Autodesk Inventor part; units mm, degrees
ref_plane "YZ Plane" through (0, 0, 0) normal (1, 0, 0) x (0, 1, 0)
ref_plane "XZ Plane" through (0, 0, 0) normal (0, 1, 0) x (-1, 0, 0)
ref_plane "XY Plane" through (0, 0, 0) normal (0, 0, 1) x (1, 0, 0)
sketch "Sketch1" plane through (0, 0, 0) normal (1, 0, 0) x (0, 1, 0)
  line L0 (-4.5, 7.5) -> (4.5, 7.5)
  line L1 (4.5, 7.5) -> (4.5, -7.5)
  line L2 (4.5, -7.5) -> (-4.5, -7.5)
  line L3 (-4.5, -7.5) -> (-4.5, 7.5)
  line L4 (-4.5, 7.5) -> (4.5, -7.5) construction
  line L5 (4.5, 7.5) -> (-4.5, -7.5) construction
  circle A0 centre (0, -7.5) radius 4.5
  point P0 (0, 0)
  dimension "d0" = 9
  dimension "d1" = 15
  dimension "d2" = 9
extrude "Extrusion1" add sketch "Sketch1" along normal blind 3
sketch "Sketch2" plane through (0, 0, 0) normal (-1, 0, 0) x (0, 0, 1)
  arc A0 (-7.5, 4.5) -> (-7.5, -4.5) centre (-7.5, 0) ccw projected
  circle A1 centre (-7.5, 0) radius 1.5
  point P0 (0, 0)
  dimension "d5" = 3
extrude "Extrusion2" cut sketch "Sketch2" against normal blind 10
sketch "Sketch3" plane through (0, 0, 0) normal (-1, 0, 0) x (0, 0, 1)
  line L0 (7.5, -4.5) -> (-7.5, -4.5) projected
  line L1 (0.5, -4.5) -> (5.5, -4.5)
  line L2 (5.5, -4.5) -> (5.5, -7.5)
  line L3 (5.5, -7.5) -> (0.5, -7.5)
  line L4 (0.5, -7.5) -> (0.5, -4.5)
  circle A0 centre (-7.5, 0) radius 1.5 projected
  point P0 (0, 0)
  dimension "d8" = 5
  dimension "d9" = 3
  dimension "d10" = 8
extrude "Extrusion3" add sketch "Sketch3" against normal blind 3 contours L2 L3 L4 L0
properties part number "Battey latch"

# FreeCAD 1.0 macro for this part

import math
import FreeCAD as App
import Part
import Sketcher

V = App.Vector
Q = App.Units.Quantity


def add_polygon(sketch, points):
    """Adds a closed chain of lines whose ends are joined by coincident constraints."""
    first, n = sketch.GeometryCount, len(points)
    for a, b in zip(points, points[1:] + points[:1]):
        sketch.addGeometry(Part.LineSegment(App.Vector(*a, 0), App.Vector(*b, 0)), False)
    for i in range(n):
        sketch.addConstraint(Sketcher.Constraint("Coincident", first + i, 2, first + (i + 1) % n, 1))

doc = App.newDocument("Part")
body = doc.addObject("PartDesign::Body", "Body")

# Sketch on YZ plane
sketch1 = body.newObject("Sketcher::SketchObject", "Sketch")
sketch1.AttachmentSupport = (doc.getObject("YZ_Plane"), [""])
sketch1.MapMode = "FlatFace"
sketch1.addGeometry(Part.LineSegment(V(4.5, 7.5, 0), V(-4.5, 7.5, 0)), False)
sketch1.addGeometry(Part.LineSegment(V(-4.5, 7.5, 0), V(-4.5, -7.5, 0)), False)
sketch1.addGeometry(Part.ArcOfCircle(Part.Circle(V(0, -7.5, 0), V(0, 0, 1), 4.5), math.radians(180), math.radians(360)), False)
sketch1.addGeometry(Part.LineSegment(V(4.5, -7.5, 0), V(4.5, 7.5, 0)), False)
sketch1.addConstraint(Sketcher.Constraint("Coincident", 0, 2, 1, 1))
sketch1.addConstraint(Sketcher.Constraint("Tangent", 1, 2, 2, 1))
sketch1.addConstraint(Sketcher.Constraint("Tangent", 2, 2, 3, 1))
sketch1.addConstraint(Sketcher.Constraint("Coincident", 3, 2, 0, 1))
sketch1.addConstraint(Sketcher.Constraint("Horizontal", 0))
sketch1.addConstraint(Sketcher.Constraint("Vertical", 1))
sketch1.addConstraint(Sketcher.Constraint("Vertical", 3))
sketch1.addConstraint(Sketcher.Constraint("Symmetric", 0, 2, 2, 2, -1, 1))
sketch1.addConstraint(Sketcher.Constraint("Radius", 2, Q("4.5 mm")))
sketch1.addConstraint(Sketcher.Constraint("DistanceY", 1, 2, 1, 1, Q("15 mm")))
pad1 = body.newObject("PartDesign::Pad", "Pad")
pad1.Profile = sketch1
pad1.Length = 3

# Sketch on YZ plane
sketch2 = body.newObject("Sketcher::SketchObject", "Sketch001")
sketch2.AttachmentSupport = (doc.getObject("YZ_Plane"), [""])
sketch2.MapMode = "FlatFace"
sketch2.addGeometry(Part.Circle(V(0, -7.5, 0), V(0, 0, 1), 1.5), False)
sketch2.addConstraint(Sketcher.Constraint("PointOnObject", 0, 3, -2))
sketch2.addConstraint(Sketcher.Constraint("Diameter", 0, Q("3 mm")))
sketch2.addConstraint(Sketcher.Constraint("DistanceY", 0, 3, -1, 1, Q("7.5 mm")))
pocket1 = body.newObject("PartDesign::Pocket", "Pocket")
pocket1.Profile = sketch2
pocket1.Length = 10
pocket1.Reversed = True

# Sketch on YZ plane
sketch3 = body.newObject("Sketcher::SketchObject", "Sketch002")
sketch3.AttachmentSupport = (doc.getObject("YZ_Plane"), [""])
sketch3.MapMode = "FlatFace"
add_polygon(sketch3, [(-7.5, 5.5), (-4.5, 5.5), (-4.5, 0.5), (-7.5, 0.5)])  # lines 0-3
sketch3.addConstraint(Sketcher.Constraint("Horizontal", 0))
sketch3.addConstraint(Sketcher.Constraint("Vertical", 1))
sketch3.addConstraint(Sketcher.Constraint("Horizontal", 2))
sketch3.addConstraint(Sketcher.Constraint("Vertical", 3))
sketch3.addConstraint(Sketcher.Constraint("DistanceX", 0, 1, 0, 2, Q("3 mm")))
sketch3.addConstraint(Sketcher.Constraint("DistanceY", 1, 2, 1, 1, Q("5 mm")))
sketch3.addConstraint(Sketcher.Constraint("DistanceX", 0, 2, -1, 1, Q("4.5 mm")))
sketch3.addConstraint(Sketcher.Constraint("DistanceY", -1, 1, 0, 2, Q("5.5 mm")))
pad2 = body.newObject("PartDesign::Pad", "Pad001")
pad2.Profile = sketch3
pad2.Length = 3

doc.recompute()
